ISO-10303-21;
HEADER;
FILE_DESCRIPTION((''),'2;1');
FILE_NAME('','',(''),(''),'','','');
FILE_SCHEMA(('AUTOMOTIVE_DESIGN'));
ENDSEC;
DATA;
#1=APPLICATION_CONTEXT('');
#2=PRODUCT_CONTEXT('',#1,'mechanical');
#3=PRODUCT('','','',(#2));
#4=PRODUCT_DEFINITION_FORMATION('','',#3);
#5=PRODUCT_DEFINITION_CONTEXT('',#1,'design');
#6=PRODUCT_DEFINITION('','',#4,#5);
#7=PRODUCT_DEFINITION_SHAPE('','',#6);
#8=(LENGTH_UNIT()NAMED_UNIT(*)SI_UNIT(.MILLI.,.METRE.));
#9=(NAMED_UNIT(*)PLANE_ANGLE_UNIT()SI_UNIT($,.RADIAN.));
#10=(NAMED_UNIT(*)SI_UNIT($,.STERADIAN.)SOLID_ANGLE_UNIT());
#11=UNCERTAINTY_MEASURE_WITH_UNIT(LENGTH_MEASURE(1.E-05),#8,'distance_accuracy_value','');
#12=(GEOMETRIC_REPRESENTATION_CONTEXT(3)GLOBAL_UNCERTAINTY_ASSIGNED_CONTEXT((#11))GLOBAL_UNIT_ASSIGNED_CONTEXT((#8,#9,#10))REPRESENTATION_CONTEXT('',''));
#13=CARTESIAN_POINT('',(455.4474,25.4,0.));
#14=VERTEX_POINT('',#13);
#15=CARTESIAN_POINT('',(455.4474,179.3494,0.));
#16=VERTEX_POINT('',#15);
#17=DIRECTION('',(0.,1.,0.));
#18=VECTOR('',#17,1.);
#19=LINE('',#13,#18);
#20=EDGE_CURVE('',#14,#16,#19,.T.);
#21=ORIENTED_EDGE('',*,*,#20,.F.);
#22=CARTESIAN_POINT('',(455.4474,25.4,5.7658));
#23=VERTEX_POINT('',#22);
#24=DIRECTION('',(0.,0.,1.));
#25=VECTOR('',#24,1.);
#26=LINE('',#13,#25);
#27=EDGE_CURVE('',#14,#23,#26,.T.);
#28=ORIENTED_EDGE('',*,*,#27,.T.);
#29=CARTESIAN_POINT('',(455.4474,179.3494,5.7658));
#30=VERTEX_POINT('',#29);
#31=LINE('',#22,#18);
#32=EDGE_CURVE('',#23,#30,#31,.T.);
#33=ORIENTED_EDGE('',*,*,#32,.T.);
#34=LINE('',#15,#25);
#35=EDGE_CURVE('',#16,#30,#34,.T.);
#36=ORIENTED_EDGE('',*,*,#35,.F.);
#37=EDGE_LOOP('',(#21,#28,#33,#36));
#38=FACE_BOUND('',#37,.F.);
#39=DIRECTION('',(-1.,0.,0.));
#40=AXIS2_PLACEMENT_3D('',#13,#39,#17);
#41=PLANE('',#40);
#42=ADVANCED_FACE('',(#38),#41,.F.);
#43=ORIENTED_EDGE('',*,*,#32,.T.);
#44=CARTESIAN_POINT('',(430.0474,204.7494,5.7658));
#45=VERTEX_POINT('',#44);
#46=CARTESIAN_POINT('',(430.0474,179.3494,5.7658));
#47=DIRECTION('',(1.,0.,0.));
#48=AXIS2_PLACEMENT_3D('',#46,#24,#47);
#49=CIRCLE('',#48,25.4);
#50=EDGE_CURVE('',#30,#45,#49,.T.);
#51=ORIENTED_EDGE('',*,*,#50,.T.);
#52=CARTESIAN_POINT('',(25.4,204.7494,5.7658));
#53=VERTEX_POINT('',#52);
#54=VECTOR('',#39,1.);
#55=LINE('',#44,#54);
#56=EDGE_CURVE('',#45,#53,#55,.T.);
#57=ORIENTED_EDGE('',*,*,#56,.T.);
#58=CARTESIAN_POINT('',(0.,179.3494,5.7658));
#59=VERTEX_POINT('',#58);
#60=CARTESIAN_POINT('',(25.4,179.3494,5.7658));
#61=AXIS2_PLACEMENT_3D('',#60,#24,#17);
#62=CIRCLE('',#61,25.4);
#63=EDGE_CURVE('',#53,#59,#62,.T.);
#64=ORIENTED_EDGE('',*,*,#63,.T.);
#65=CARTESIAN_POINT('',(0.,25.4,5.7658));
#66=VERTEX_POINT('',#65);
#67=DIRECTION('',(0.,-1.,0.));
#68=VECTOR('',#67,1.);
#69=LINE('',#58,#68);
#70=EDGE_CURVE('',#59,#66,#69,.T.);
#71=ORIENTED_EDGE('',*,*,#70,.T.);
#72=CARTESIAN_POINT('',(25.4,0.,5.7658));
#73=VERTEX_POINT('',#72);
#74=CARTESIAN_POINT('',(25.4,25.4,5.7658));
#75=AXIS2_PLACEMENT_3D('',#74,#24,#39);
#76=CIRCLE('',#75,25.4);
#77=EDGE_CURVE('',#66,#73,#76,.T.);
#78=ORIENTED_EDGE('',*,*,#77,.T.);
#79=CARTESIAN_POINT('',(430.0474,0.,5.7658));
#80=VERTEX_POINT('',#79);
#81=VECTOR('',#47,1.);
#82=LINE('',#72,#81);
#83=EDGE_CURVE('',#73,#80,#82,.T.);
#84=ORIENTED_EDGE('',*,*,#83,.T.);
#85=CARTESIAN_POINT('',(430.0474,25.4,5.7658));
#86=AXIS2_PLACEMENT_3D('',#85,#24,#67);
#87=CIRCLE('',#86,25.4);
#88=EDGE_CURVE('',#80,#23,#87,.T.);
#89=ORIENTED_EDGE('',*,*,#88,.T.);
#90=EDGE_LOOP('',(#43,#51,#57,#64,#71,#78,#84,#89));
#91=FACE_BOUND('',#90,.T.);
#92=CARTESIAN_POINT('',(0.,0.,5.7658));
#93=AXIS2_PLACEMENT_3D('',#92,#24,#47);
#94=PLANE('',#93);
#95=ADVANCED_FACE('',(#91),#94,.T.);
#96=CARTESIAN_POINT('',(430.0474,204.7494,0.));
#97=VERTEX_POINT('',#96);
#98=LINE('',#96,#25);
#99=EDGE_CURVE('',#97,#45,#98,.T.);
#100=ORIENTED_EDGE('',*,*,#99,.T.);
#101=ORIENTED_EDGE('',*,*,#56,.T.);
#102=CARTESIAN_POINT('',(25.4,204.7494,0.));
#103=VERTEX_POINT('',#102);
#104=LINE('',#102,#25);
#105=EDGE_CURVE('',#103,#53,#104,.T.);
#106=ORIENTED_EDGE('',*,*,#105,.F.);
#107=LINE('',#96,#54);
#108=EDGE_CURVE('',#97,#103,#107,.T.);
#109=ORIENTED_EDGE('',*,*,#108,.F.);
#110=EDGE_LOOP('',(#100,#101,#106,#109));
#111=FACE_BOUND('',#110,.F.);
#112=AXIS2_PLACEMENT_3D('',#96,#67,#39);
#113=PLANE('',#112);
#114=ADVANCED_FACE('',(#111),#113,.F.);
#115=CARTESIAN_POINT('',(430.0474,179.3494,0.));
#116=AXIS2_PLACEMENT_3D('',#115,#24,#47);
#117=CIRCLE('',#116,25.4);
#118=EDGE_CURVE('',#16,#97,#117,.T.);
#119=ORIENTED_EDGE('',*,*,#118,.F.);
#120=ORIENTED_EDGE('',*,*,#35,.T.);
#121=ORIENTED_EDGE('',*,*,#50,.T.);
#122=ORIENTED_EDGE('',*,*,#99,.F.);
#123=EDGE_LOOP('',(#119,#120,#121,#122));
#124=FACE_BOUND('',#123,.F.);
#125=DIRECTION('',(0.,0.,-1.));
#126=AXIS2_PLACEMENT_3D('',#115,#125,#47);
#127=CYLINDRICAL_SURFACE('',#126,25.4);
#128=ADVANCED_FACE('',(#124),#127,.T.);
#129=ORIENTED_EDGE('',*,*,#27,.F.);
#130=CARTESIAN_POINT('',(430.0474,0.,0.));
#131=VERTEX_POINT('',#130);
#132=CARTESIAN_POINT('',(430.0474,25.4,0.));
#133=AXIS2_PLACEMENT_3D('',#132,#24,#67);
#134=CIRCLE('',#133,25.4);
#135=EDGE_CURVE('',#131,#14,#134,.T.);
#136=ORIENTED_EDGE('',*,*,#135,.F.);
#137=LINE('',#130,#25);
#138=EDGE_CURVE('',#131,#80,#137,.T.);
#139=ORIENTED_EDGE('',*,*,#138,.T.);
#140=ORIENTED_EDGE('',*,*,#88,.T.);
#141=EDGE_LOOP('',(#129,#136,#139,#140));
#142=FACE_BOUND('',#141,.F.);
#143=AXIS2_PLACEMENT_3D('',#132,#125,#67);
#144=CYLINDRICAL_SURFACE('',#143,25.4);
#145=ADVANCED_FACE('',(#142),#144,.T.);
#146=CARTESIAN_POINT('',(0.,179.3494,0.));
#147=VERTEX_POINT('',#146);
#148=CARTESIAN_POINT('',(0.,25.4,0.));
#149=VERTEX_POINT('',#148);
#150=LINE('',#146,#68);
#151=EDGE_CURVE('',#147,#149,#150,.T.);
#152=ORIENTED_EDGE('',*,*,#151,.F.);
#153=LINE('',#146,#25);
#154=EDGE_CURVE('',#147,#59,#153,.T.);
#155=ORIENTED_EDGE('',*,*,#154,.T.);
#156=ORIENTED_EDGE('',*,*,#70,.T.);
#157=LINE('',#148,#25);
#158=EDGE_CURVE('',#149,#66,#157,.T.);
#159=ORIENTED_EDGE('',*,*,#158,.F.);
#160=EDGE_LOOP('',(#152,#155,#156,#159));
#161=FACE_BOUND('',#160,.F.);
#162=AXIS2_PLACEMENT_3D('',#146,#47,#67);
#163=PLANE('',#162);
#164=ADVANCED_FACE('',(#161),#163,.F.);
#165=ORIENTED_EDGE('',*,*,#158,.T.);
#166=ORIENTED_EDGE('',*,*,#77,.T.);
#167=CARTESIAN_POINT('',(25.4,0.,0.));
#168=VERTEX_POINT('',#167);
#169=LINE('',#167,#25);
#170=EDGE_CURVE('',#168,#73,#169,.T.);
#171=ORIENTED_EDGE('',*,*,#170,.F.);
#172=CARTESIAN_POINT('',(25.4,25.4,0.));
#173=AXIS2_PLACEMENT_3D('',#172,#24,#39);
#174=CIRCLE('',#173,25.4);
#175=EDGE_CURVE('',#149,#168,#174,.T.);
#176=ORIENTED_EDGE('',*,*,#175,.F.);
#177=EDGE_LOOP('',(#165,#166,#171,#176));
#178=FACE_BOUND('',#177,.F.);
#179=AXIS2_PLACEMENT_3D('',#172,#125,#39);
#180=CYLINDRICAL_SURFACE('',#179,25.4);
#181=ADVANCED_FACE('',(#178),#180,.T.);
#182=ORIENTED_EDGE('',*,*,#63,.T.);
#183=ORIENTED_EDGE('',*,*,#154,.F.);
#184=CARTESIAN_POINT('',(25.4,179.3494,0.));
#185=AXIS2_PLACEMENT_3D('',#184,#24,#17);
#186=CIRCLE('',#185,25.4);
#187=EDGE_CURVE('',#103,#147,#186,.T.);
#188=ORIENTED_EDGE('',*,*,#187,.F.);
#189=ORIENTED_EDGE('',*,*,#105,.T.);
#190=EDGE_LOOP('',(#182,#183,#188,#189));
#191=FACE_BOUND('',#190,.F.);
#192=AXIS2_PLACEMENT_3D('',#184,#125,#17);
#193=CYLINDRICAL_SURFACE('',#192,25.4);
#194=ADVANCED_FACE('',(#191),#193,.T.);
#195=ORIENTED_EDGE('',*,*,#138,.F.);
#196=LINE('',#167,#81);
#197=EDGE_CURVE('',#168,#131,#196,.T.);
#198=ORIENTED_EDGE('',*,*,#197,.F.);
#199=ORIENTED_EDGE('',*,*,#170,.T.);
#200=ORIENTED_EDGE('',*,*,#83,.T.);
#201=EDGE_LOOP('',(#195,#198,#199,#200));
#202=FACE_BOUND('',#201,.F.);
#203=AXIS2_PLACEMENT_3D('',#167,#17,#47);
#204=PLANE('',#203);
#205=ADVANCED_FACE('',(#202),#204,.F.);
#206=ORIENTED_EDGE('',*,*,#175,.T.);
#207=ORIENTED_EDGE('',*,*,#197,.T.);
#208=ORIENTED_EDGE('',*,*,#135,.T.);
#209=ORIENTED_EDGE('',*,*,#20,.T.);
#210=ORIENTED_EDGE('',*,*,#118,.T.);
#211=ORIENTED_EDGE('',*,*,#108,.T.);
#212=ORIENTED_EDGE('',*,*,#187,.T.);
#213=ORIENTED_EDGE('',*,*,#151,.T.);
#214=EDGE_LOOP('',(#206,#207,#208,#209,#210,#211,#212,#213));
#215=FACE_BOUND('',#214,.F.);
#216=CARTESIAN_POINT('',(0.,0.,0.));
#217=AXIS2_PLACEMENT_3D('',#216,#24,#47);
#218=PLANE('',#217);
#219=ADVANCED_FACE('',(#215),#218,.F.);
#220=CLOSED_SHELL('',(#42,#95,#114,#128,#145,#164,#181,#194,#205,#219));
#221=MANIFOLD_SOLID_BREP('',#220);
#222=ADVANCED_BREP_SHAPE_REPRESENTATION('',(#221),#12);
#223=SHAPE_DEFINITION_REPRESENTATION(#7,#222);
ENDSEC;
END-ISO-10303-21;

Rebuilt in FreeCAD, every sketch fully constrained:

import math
import FreeCAD as App
import Part
import Sketcher

V = App.Vector
Q = App.Units.Quantity

doc = App.newDocument("Part")
body = doc.addObject("PartDesign::Body", "Body")

sketch1 = body.newObject("Sketcher::SketchObject", "Sketch")
sketch1.AttachmentSupport = (doc.getObject("XY_Plane"), [""])
sketch1.MapMode = "FlatFace"
sketch1.addGeometry(Part.ArcOfCircle(Part.Circle(V(25, 25, 0), V(0, 0, 1), 25), math.radians(180), math.radians(270)), False)
sketch1.addGeometry(Part.LineSegment(V(25, 0, 0), V(430, 0, 0)), False)
sketch1.addGeometry(Part.ArcOfCircle(Part.Circle(V(430, 25, 0), V(0, 0, 1), 25), math.radians(-90), math.radians(0)), False)
sketch1.addGeometry(Part.LineSegment(V(455, 25, 0), V(455, 179, 0)), False)
sketch1.addGeometry(Part.ArcOfCircle(Part.Circle(V(430, 179, 0), V(0, 0, 1), 25), math.radians(0), math.radians(90)), False)
sketch1.addGeometry(Part.LineSegment(V(430, 205, 0), V(25, 205, 0)), False)
sketch1.addGeometry(Part.ArcOfCircle(Part.Circle(V(25, 179, 0), V(0, 0, 1), 25), math.radians(90), math.radians(180)), False)
sketch1.addGeometry(Part.LineSegment(V(0, 179, 0), V(0, 25, 0)), False)
sketch1.addConstraint(Sketcher.Constraint("Tangent", 0, 2, 1, 1))
sketch1.addConstraint(Sketcher.Constraint("Tangent", 1, 2, 2, 1))
sketch1.addConstraint(Sketcher.Constraint("Tangent", 2, 2, 3, 1))
sketch1.addConstraint(Sketcher.Constraint("Tangent", 3, 2, 4, 1))
sketch1.addConstraint(Sketcher.Constraint("Tangent", 4, 2, 5, 1))
sketch1.addConstraint(Sketcher.Constraint("Tangent", 5, 2, 6, 1))
sketch1.addConstraint(Sketcher.Constraint("Tangent", 6, 2, 7, 1))
sketch1.addConstraint(Sketcher.Constraint("Tangent", 7, 2, 0, 1))
sketch1.addConstraint(Sketcher.Constraint("Horizontal", 1))
sketch1.addConstraint(Sketcher.Constraint("Vertical", 3))
sketch1.addConstraint(Sketcher.Constraint("Horizontal", 5))
sketch1.addConstraint(Sketcher.Constraint("Vertical", 7))
sketch1.addConstraint(Sketcher.Constraint("Equal", 0, 2))
sketch1.addConstraint(Sketcher.Constraint("Equal", 2, 4))
sketch1.addConstraint(Sketcher.Constraint("Equal", 4, 6))
sketch1.addConstraint(Sketcher.Constraint("PointOnObject", 0, 2, -1))
sketch1.addConstraint(Sketcher.Constraint("PointOnObject", 6, 2, -2))
sketch1.addConstraint(Sketcher.Constraint("Radius", 0, Q("1 in")))
sketch1.addConstraint(Sketcher.Constraint("DistanceX", -1, 1, 2, 2, Q("17.931 in")))
sketch1.addConstraint(Sketcher.Constraint("DistanceY", -1, 1, 4, 2, Q("8.061 in")))
pad1 = body.newObject("PartDesign::Pad", "Pad")
pad1.Profile = sketch1
pad1.Length = Q("0.227 in")

doc.recompute()
